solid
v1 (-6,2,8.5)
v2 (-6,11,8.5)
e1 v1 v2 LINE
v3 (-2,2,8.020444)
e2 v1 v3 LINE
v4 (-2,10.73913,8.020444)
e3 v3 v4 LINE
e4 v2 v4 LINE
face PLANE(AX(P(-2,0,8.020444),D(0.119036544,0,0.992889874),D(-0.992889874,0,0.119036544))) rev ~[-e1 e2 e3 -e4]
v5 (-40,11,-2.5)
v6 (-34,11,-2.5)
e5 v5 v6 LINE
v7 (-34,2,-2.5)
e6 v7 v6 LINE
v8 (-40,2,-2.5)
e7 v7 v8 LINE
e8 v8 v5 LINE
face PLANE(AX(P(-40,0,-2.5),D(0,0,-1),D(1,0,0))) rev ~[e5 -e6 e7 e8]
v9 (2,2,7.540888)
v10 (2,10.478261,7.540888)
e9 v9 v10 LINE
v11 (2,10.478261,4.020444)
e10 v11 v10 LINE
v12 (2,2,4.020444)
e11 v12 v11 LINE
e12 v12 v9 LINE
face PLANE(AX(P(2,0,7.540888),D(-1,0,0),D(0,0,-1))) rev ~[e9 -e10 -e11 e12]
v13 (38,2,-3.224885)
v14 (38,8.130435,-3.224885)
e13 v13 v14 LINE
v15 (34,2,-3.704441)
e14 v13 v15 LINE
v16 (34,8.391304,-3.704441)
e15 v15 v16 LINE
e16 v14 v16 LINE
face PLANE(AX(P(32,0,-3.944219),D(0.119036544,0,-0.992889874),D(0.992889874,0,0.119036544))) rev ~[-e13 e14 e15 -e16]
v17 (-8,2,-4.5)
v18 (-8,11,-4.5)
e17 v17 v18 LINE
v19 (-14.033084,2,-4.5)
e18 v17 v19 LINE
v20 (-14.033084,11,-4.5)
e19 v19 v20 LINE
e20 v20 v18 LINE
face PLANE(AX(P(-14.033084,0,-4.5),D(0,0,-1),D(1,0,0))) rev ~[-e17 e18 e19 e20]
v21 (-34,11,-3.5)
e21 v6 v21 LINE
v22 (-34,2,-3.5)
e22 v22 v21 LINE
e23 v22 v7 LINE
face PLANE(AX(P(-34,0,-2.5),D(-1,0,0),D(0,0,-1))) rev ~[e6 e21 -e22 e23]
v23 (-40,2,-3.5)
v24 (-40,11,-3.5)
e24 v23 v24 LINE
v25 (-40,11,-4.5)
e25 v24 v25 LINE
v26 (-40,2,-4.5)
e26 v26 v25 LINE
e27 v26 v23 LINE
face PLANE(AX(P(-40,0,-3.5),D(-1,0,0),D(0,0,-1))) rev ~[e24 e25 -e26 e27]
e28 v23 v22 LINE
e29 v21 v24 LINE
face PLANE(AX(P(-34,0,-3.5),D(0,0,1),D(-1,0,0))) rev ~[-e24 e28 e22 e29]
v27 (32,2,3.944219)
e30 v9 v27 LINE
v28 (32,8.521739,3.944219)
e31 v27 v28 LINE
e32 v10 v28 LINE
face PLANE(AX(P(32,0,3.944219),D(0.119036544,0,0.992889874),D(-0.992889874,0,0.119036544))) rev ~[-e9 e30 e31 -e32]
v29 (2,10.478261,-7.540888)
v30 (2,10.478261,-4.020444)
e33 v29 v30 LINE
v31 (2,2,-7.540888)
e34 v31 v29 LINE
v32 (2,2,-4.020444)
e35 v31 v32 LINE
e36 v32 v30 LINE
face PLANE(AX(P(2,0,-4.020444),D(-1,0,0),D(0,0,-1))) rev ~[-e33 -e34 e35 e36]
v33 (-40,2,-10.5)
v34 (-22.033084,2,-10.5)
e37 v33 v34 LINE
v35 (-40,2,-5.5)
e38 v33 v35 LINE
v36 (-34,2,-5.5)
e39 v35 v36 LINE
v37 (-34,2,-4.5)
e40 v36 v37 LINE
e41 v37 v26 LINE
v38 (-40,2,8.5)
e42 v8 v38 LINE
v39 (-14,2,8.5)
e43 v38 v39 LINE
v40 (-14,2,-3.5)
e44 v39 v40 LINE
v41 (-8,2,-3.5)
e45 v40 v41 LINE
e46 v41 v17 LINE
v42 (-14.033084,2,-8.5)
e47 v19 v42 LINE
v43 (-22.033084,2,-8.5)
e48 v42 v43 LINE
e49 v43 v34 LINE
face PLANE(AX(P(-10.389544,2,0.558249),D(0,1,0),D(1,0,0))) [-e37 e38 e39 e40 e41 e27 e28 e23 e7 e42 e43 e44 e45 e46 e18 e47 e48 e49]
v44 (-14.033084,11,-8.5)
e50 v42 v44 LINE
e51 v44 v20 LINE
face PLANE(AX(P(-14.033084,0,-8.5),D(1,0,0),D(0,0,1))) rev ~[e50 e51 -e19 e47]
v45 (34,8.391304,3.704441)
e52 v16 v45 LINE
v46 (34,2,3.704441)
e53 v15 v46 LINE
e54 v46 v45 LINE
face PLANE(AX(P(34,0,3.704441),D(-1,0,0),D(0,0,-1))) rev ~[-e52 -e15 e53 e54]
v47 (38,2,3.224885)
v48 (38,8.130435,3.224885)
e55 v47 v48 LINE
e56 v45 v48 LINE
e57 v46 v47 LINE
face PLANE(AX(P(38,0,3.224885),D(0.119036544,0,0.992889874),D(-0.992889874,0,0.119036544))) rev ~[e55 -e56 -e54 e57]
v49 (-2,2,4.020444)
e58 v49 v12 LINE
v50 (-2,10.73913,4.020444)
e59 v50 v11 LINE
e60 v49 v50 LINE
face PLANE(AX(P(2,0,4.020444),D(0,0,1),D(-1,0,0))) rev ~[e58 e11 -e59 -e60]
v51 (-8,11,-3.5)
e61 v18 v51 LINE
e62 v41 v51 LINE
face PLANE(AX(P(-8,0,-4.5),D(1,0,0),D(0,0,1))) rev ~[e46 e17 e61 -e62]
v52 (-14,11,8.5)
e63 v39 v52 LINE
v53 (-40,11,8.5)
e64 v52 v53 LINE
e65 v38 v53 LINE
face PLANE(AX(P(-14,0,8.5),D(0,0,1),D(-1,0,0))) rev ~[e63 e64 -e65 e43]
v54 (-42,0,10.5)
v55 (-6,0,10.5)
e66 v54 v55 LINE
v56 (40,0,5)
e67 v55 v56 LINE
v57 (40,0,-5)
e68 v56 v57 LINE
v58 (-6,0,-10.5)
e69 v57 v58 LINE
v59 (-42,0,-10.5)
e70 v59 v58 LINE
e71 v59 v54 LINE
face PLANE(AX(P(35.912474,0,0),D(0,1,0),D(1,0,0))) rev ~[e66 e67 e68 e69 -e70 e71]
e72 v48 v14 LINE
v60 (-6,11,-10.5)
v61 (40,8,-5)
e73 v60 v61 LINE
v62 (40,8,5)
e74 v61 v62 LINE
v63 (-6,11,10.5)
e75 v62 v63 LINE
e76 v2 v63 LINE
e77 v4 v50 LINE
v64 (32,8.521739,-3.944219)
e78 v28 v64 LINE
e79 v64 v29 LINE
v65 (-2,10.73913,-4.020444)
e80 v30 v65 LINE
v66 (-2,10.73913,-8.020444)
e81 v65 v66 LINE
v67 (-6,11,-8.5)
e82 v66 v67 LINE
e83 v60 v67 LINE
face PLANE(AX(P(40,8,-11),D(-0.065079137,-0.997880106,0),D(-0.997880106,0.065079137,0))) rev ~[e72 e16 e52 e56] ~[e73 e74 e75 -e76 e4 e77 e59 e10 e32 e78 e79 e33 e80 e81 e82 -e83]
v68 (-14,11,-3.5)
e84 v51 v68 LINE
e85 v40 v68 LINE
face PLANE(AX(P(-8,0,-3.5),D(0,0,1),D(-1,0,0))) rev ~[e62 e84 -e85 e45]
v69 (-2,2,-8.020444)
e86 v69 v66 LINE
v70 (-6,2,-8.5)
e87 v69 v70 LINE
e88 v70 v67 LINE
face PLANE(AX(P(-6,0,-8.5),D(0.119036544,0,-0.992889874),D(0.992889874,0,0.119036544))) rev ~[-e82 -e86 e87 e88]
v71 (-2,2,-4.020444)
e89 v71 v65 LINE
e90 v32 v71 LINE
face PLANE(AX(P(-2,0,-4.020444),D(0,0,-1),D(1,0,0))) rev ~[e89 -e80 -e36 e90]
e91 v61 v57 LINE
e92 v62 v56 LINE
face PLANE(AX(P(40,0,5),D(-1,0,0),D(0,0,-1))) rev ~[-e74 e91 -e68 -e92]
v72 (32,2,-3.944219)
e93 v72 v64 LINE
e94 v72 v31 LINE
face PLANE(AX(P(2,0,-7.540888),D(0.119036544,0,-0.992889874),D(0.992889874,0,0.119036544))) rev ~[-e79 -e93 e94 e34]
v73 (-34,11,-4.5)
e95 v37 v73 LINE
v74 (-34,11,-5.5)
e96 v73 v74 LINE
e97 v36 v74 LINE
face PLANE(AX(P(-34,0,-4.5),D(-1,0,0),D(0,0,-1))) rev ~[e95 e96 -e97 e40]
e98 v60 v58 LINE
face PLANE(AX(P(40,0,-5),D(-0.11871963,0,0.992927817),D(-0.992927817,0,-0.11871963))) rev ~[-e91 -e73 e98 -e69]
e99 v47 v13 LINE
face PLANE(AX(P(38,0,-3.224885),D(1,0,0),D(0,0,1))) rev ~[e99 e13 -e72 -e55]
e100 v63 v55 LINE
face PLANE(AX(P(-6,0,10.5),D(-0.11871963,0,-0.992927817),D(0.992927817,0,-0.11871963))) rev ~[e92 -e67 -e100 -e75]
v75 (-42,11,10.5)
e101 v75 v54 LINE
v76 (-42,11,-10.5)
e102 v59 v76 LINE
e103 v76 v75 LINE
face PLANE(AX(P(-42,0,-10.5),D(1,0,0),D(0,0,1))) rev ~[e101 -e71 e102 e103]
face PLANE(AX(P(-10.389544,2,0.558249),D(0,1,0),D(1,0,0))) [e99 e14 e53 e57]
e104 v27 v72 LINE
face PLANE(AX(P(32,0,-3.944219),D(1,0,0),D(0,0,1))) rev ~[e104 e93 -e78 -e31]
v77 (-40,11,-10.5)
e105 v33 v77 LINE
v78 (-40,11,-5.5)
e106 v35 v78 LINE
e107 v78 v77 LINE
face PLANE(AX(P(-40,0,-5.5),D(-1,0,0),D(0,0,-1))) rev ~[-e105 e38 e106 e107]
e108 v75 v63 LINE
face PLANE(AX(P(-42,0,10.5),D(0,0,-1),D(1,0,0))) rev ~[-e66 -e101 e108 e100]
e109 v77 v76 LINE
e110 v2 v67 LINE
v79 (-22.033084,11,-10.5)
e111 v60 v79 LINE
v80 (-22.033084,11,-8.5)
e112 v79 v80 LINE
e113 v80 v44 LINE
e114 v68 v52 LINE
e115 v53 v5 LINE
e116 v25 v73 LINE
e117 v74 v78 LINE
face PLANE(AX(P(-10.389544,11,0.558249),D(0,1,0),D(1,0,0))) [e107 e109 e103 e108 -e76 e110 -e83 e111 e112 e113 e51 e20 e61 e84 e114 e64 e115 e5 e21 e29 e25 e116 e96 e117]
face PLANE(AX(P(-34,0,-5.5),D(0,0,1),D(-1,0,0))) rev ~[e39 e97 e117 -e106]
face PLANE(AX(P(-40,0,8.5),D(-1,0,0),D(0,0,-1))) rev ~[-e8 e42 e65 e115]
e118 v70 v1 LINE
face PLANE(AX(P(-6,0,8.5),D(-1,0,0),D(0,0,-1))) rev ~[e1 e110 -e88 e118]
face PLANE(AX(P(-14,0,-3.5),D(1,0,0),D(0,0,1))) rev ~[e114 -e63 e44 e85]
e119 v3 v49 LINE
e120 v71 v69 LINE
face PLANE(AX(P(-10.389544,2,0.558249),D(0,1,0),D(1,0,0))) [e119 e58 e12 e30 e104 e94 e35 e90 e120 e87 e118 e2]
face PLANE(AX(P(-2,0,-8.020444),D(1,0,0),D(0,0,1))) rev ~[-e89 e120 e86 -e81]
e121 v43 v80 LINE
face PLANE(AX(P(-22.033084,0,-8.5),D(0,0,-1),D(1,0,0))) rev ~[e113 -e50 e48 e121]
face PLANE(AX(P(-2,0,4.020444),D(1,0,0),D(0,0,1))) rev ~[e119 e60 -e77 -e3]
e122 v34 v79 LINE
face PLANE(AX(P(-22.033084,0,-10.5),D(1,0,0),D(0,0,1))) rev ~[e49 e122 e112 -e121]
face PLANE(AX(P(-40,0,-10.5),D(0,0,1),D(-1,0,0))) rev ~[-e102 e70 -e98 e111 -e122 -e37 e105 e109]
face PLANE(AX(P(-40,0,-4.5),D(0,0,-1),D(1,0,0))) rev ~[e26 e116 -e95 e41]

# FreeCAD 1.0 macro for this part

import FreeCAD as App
import Part
import Sketcher

doc = App.newDocument("Part")
params = doc.addObject("Spreadsheet::Sheet", "Params")
for row, (alias, value) in enumerate([
    ("sketch1_width", "36 mm"),
    ("sketch1_height", "21 mm"),
    ("sketch1_height2", "10 mm"),
    ("pad1_length", "2 mm"),
    ("sketch2_width", "2 mm"),
    ("sketch2_width2", "36 mm"),
    ("sketch2_width3", "8 mm"),
    ("sketch2_width4", "6 mm"),
    ("sketch2_width5", "26 mm"),
    ("pad2_length", "11 mm"),
    ("sketch3_width", "46 mm"),
    ("sketch3_height", "3 mm"),
], start=1):
    params.set(f"A{row}", alias)
    params.set(f"B{row}", "=" + value)
    params.setAlias(f"B{row}", alias)

body = doc.addObject("PartDesign::Body", "Body")

sketch1 = body.newObject("Sketcher::SketchObject", "Sketch")
sketch1.AttachmentSupport = (doc.getObject("XZ_Plane"), [""])
sketch1.MapMode = "FlatFace"
sketch1.addGeometry([
    Part.LineSegment(App.Vector(-42, -10, 0), App.Vector(-42, 10, 0)),
    Part.LineSegment(App.Vector(-42, 10, 0), App.Vector(-6, 10, 0)),
    Part.LineSegment(App.Vector(-6, 10, 0), App.Vector(40, 5, 0)),
    Part.LineSegment(App.Vector(40, 5, 0), App.Vector(40, -5, 0)),
    Part.LineSegment(App.Vector(40, -5, 0), App.Vector(-6, -10, 0)),
    Part.LineSegment(App.Vector(-6, -10, 0), App.Vector(-42, -10, 0)),
], False)
sketch1.addConstraint([
    Sketcher.Constraint("Coincident", 0, 2, 1, 1),
    Sketcher.Constraint("Coincident", 1, 2, 2, 1),
    Sketcher.Constraint("Coincident", 2, 2, 3, 1),
    Sketcher.Constraint("Coincident", 3, 2, 4, 1),
    Sketcher.Constraint("Coincident", 4, 2, 5, 1),
    Sketcher.Constraint("Coincident", 5, 2, 0, 1),
    Sketcher.Constraint("Vertical", 0),
    Sketcher.Constraint("Horizontal", 1),
    Sketcher.Constraint("Vertical", 3),
    Sketcher.Constraint("Horizontal", 5),
    Sketcher.Constraint("Symmetric", 1, 2, 4, 2, -1),
    Sketcher.Constraint("Equal", 2, 4),
    Sketcher.Constraint("DistanceX", 1, 1, 1, 2, 36.0),
    Sketcher.Constraint("DistanceY", 0, 1, 0, 2, 21.0),
    Sketcher.Constraint("DistanceY", 3, 2, 3, 1, 10.0),
    Sketcher.Constraint("DistanceX", 0, 2, -1, 1, 42.0),
    Sketcher.Constraint("DistanceX", -1, 1, 2, 2, 40.0),
])
sketch1.setExpression("Constraints[12]", "Params.sketch1_width")
sketch1.setExpression("Constraints[13]", "Params.sketch1_height")
sketch1.setExpression("Constraints[14]", "Params.sketch1_height2")
pad1 = body.newObject("PartDesign::Pad", "Pad")
pad1.Profile = sketch1
pad1.setExpression("Length", "Params.pad1_length")
pad1.Reversed = True

sketch2 = body.newObject("Sketcher::SketchObject", "Sketch001")
sketch2.AttachmentSupport = (doc.getObject("XZ_Plane"), [""])
sketch2.MapMode = "FlatFace"
sketch2.addGeometry([
    Part.LineSegment(App.Vector(-40, -10.5, 0), App.Vector(-42, -10.5, 0)),
    Part.LineSegment(App.Vector(-42, -10.5, 0), App.Vector(-42, 10.5, 0)),
    Part.LineSegment(App.Vector(-42, 10.5, 0), App.Vector(-6, 10.5, 0)),
    Part.LineSegment(App.Vector(-6, 10.5, 0), App.Vector(40, 5, 0)),
    Part.LineSegment(App.Vector(40, 5, 0), App.Vector(40, -5, 0)),
    Part.LineSegment(App.Vector(40, -5, 0), App.Vector(-6, -10.5, 0)),
    Part.LineSegment(App.Vector(-6, -10.5, 0), App.Vector(-22, -10.5, 0)),
    Part.LineSegment(App.Vector(-22, -10.5, 0), App.Vector(-22, -8.5, 0)),
    Part.LineSegment(App.Vector(-22, -8.5, 0), App.Vector(-14, -8.5, 0)),
    Part.LineSegment(App.Vector(-14, -8.5, 0), App.Vector(-14, -4.5, 0)),
    Part.LineSegment(App.Vector(-14, -4.5, 0), App.Vector(-8, -4.5, 0)),
    Part.LineSegment(App.Vector(-8, -4.5, 0), App.Vector(-8, -3.5, 0)),
    Part.LineSegment(App.Vector(-8, -3.5, 0), App.Vector(-14, -3.5, 0)),
    Part.LineSegment(App.Vector(-14, -3.5, 0), App.Vector(-14, 8.5, 0)),
    Part.LineSegment(App.Vector(-14, 8.5, 0), App.Vector(-40, 8.5, 0)),
    Part.LineSegment(App.Vector(-40, 8.5, 0), App.Vector(-40, -2.5, 0)),
    Part.LineSegment(App.Vector(-40, -2.5, 0), App.Vector(-34, -2.5, 0)),
    Part.LineSegment(App.Vector(-34, -2.5, 0), App.Vector(-34, -3.5, 0)),
    Part.LineSegment(App.Vector(-34, -3.5, 0), App.Vector(-40, -3.5, 0)),
    Part.LineSegment(App.Vector(-40, -3.5, 0), App.Vector(-40, -4.5, 0)),
    Part.LineSegment(App.Vector(-40, -4.5, 0), App.Vector(-34, -4.5, 0)),
    Part.LineSegment(App.Vector(-34, -4.5, 0), App.Vector(-34, -5.5, 0)),
    Part.LineSegment(App.Vector(-34, -5.5, 0), App.Vector(-40, -5.5, 0)),
    Part.LineSegment(App.Vector(-40, -5.5, 0), App.Vector(-40, -10.5, 0)),
    Part.LineSegment(App.Vector(-2, 8, 0), App.Vector(-6, 8.5, 0)),
    Part.LineSegment(App.Vector(-6, 8.5, 0), App.Vector(-6, -8.5, 0)),
    Part.LineSegment(App.Vector(-6, -8.5, 0), App.Vector(-2, -8, 0)),
    Part.LineSegment(App.Vector(-2, -8, 0), App.Vector(-2, -4, 0)),
    Part.LineSegment(App.Vector(-2, -4, 0), App.Vector(2, -4, 0)),
    Part.LineSegment(App.Vector(2, -4, 0), App.Vector(2, -7.5, 0)),
    Part.LineSegment(App.Vector(2, -7.5, 0), App.Vector(32, -3.9, 0)),
    Part.LineSegment(App.Vector(32, -3.9, 0), App.Vector(32, 3.9, 0)),
    Part.LineSegment(App.Vector(32, 3.9, 0), App.Vector(2, 7.5, 0)),
    Part.LineSegment(App.Vector(2, 7.5, 0), App.Vector(2, 4, 0)),
    Part.LineSegment(App.Vector(2, 4, 0), App.Vector(-2, 4, 0)),
    Part.LineSegment(App.Vector(-2, 4, 0), App.Vector(-2, 8, 0)),
    Part.LineSegment(App.Vector(34, -3.7, 0), App.Vector(38, -3.2, 0)),
    Part.LineSegment(App.Vector(38, -3.2, 0), App.Vector(38, 3.2, 0)),
    Part.LineSegment(App.Vector(38, 3.2, 0), App.Vector(34, 3.7, 0)),
    Part.LineSegment(App.Vector(34, 3.7, 0), App.Vector(34, -3.7, 0)),
], False)
sketch2.addConstraint([
    Sketcher.Constraint("Coincident", 0, 2, 1, 1),
    Sketcher.Constraint("Coincident", 1, 2, 2, 1),
    Sketcher.Constraint("Coincident", 2, 2, 3, 1),
    Sketcher.Constraint("Coincident", 3, 2, 4, 1),
    Sketcher.Constraint("Coincident", 4, 2, 5, 1),
    Sketcher.Constraint("Coincident", 5, 2, 6, 1),
    Sketcher.Constraint("Coincident", 6, 2, 7, 1),
    Sketcher.Constraint("Coincident", 7, 2, 8, 1),
    Sketcher.Constraint("Coincident", 8, 2, 9, 1),
    Sketcher.Constraint("Coincident", 9, 2, 10, 1),
    Sketcher.Constraint("Coincident", 10, 2, 11, 1),
    Sketcher.Constraint("Coincident", 11, 2, 12, 1),
    Sketcher.Constraint("Coincident", 12, 2, 13, 1),
    Sketcher.Constraint("Coincident", 13, 2, 14, 1),
    Sketcher.Constraint("Coincident", 14, 2, 15, 1),
    Sketcher.Constraint("Coincident", 15, 2, 16, 1),
    Sketcher.Constraint("Coincident", 16, 2, 17, 1),
    Sketcher.Constraint("Coincident", 17, 2, 18, 1),
    Sketcher.Constraint("Coincident", 18, 2, 19, 1),
    Sketcher.Constraint("Coincident", 19, 2, 20, 1),
    Sketcher.Constraint("Coincident", 20, 2, 21, 1),
    Sketcher.Constraint("Coincident", 21, 2, 22, 1),
    Sketcher.Constraint("Coincident", 22, 2, 23, 1),
    Sketcher.Constraint("Coincident", 23, 2, 0, 1),
    Sketcher.Constraint("Coincident", 24, 2, 25, 1),
    Sketcher.Constraint("Coincident", 25, 2, 26, 1),
    Sketcher.Constraint("Coincident", 26, 2, 27, 1),
    Sketcher.Constraint("Coincident", 27, 2, 28, 1),
    Sketcher.Constraint("Coincident", 28, 2, 29, 1),
    Sketcher.Constraint("Coincident", 29, 2, 30, 1),
    Sketcher.Constraint("Coincident", 30, 2, 31, 1),
    Sketcher.Constraint("Coincident", 31, 2, 32, 1),
    Sketcher.Constraint("Coincident", 32, 2, 33, 1),
    Sketcher.Constraint("Coincident", 33, 2, 34, 1),
    Sketcher.Constraint("Coincident", 34, 2, 35, 1),
    Sketcher.Constraint("Coincident", 35, 2, 24, 1),
    Sketcher.Constraint("Coincident", 36, 2, 37, 1),
    Sketcher.Constraint("Coincident", 37, 2, 38, 1),
    Sketcher.Constraint("Coincident", 38, 2, 39, 1),
    Sketcher.Constraint("Coincident", 39, 2, 36, 1),
    Sketcher.Constraint("Horizontal", 0),
    Sketcher.Constraint("Vertical", 1),
    Sketcher.Constraint("Horizontal", 2),
    Sketcher.Constraint("Vertical", 4),
    Sketcher.Constraint("Horizontal", 6),
    Sketcher.Constraint("Vertical", 7),
    Sketcher.Constraint("Horizontal", 8),
    Sketcher.Constraint("Vertical", 9),
    Sketcher.Constraint("Horizontal", 10),
    Sketcher.Constraint("Vertical", 11),
    Sketcher.Constraint("Horizontal", 12),
    Sketcher.Constraint("Vertical", 13),
    Sketcher.Constraint("Horizontal", 14),
    Sketcher.Constraint("Vertical", 15),
    Sketcher.Constraint("Horizontal", 16),
    Sketcher.Constraint("Vertical", 17),
    Sketcher.Constraint("Horizontal", 18),
    Sketcher.Constraint("Vertical", 19),
    Sketcher.Constraint("Horizontal", 20),
    Sketcher.Constraint("Vertical", 21),
    Sketcher.Constraint("Horizontal", 22),
    Sketcher.Constraint("Vertical", 23),
    Sketcher.Constraint("Vertical", 25),
    Sketcher.Constraint("Vertical", 27),
    Sketcher.Constraint("Horizontal", 28),
    Sketcher.Constraint("Vertical", 29),
    Sketcher.Constraint("Vertical", 31),
    Sketcher.Constraint("Vertical", 33),
    Sketcher.Constraint("Horizontal", 34),
    Sketcher.Constraint("Vertical", 35),
    Sketcher.Constraint("Vertical", 37),
    Sketcher.Constraint("Vertical", 39),
    Sketcher.Constraint("Symmetric", 27, 2, 33, 2, -1, 1),
    Sketcher.Constraint("Symmetric", 2, 2, 5, 2, -1),
    Sketcher.Constraint("Symmetric", 29, 2, 32, 2, -1),
    Sketcher.Constraint("Symmetric", 26, 2, 35, 2, -1),
    Sketcher.Constraint("Parallel", 26, 30),
    Sketcher.Constraint("Parallel", 24, 32),
    Sketcher.Constraint("Parallel", 30, 36),
    Sketcher.Constraint("Parallel", 32, 38),
    Sketcher.Constraint("Horizontal", 0, 2, 5, 2),
    Sketcher.Constraint("Horizontal", 12, 2, 17, 2),
    Sketcher.Constraint("Horizontal", 10, 2, 19, 2),
    Sketcher.Constraint("Horizontal", 14, 2, 24, 2),
    Sketcher.Constraint("Horizontal", 8, 2, 25, 2),
    Sketcher.Constraint("Vertical", 15, 2, 18, 2),
    Sketcher.Constraint("Vertical", 17, 2, 20, 2),
    Sketcher.Constraint("Vertical", 19, 2, 22, 2),
    Sketcher.Constraint("Vertical", 5, 2, 24, 2),
    Sketcher.Constraint("Equal", 12, 16),
    Sketcher.Constraint("Equal", 0, 7),
    Sketcher.Constraint("Equal", 34, 9),
    Sketcher.Constraint("Equal", 11, 17),
    Sketcher.Constraint("Equal", 19, 21),
    Sketcher.Constraint("Equal", 9, 27),
    Sketcher.Constraint("Equal", 3, 5),
    Sketcher.Constraint("Equal", 24, 26),
    Sketcher.Constraint("Equal", 26, 36),
    Sketcher.Constraint("DistanceX", 0, 2, 0, 1, 2.0),
    Sketcher.Constraint("DistanceX", 2, 1, 2, 2, 36.0),
    Sketcher.Constraint("DistanceX", 8, 1, 8, 2, 8.0),
    Sketcher.Constraint("DistanceX", 12, 2, 12, 1, 6.0),
    Sketcher.Constraint("DistanceX", 14, 2, 14, 1, 26.0),
    Sketcher.Constraint("DistanceX", 28, 1, 28, 2, 4.0),
    Sketcher.Constraint("DistanceY", 1, 1, 1, 2, 21.0),
    Sketcher.Constraint("DistanceY", 4, 2, 4, 1, 10.0),
    Sketcher.Constraint("DistanceY", 11, 1, 11, 2, 1.0),
    Sketcher.Constraint("DistanceX", 0, 2, -1, 1, 42.0),
    Sketcher.Constraint("DistanceX", -1, 1, 3, 2, 40.0),
    Sketcher.Constraint("DistanceX", -1, 1, 30, 2, 32.0),
    Sketcher.Constraint("DistanceX", -1, 1, 36, 2, 38.0),
    Sketcher.Constraint("DistanceY", 31, 1, 31, 2, 7.888438),
    Sketcher.Constraint("DistanceY", 37, 1, 37, 2, 6.449771),
    Sketcher.Constraint("Distance", 30, 30.214831),
    Sketcher.Constraint("DistanceX", 6, 2, 6, 1, 16.033084),
    Sketcher.Constraint("DistanceY", -1, 1, 38, 2, 3.704441),
])
sketch2.setExpression("Constraints[98]", "Params.sketch2_width")
sketch2.setExpression("Constraints[99]", "Params.sketch2_width2")
sketch2.setExpression("Constraints[100]", "Params.sketch2_width3")
sketch2.setExpression("Constraints[101]", "Params.sketch2_width4")
sketch2.setExpression("Constraints[102]", "Params.sketch2_width5")
pad2 = body.newObject("PartDesign::Pad", "Pad001")
pad2.Profile = sketch2
pad2.setExpression("Length", "Params.pad2_length")
pad2.Reversed = True

sketch3 = body.newObject("Sketcher::SketchObject", "Sketch002")
sketch3.AttachmentSupport = (doc.getObject("XY_Plane"), [""])
sketch3.MapMode = "FlatFace"
sketch3.addGeometry([
    Part.LineSegment(App.Vector(40, 11, 0), App.Vector(-6, 11, 0)),
    Part.LineSegment(App.Vector(-6, 11, 0), App.Vector(40, 8, 0)),
    Part.LineSegment(App.Vector(40, 8, 0), App.Vector(40, 11, 0)),
], False)
sketch3.addConstraint([
    Sketcher.Constraint("Coincident", 0, 2, 1, 1),
    Sketcher.Constraint("Coincident", 1, 2, 2, 1),
    Sketcher.Constraint("Coincident", 2, 2, 0, 1),
    Sketcher.Constraint("Horizontal", 0),
    Sketcher.Constraint("Vertical", 2),
    Sketcher.Constraint("DistanceX", 0, 2, 0, 1, 46.0),
    Sketcher.Constraint("DistanceY", 2, 1, 2, 2, 3.0),
    Sketcher.Constraint("DistanceX", 0, 2, -1, 1, 6.0),
    Sketcher.Constraint("DistanceY", -1, 1, 0, 2, 11.0),
])
sketch3.setExpression("Constraints[5]", "Params.sketch3_width")
sketch3.setExpression("Constraints[6]", "Params.sketch3_height")
pocket1 = body.newObject("PartDesign::Pocket", "Pocket")
pocket1.Profile = sketch3
pocket1.Type = "ThroughAll"
pocket1.Midplane = True

doc.recompute()
